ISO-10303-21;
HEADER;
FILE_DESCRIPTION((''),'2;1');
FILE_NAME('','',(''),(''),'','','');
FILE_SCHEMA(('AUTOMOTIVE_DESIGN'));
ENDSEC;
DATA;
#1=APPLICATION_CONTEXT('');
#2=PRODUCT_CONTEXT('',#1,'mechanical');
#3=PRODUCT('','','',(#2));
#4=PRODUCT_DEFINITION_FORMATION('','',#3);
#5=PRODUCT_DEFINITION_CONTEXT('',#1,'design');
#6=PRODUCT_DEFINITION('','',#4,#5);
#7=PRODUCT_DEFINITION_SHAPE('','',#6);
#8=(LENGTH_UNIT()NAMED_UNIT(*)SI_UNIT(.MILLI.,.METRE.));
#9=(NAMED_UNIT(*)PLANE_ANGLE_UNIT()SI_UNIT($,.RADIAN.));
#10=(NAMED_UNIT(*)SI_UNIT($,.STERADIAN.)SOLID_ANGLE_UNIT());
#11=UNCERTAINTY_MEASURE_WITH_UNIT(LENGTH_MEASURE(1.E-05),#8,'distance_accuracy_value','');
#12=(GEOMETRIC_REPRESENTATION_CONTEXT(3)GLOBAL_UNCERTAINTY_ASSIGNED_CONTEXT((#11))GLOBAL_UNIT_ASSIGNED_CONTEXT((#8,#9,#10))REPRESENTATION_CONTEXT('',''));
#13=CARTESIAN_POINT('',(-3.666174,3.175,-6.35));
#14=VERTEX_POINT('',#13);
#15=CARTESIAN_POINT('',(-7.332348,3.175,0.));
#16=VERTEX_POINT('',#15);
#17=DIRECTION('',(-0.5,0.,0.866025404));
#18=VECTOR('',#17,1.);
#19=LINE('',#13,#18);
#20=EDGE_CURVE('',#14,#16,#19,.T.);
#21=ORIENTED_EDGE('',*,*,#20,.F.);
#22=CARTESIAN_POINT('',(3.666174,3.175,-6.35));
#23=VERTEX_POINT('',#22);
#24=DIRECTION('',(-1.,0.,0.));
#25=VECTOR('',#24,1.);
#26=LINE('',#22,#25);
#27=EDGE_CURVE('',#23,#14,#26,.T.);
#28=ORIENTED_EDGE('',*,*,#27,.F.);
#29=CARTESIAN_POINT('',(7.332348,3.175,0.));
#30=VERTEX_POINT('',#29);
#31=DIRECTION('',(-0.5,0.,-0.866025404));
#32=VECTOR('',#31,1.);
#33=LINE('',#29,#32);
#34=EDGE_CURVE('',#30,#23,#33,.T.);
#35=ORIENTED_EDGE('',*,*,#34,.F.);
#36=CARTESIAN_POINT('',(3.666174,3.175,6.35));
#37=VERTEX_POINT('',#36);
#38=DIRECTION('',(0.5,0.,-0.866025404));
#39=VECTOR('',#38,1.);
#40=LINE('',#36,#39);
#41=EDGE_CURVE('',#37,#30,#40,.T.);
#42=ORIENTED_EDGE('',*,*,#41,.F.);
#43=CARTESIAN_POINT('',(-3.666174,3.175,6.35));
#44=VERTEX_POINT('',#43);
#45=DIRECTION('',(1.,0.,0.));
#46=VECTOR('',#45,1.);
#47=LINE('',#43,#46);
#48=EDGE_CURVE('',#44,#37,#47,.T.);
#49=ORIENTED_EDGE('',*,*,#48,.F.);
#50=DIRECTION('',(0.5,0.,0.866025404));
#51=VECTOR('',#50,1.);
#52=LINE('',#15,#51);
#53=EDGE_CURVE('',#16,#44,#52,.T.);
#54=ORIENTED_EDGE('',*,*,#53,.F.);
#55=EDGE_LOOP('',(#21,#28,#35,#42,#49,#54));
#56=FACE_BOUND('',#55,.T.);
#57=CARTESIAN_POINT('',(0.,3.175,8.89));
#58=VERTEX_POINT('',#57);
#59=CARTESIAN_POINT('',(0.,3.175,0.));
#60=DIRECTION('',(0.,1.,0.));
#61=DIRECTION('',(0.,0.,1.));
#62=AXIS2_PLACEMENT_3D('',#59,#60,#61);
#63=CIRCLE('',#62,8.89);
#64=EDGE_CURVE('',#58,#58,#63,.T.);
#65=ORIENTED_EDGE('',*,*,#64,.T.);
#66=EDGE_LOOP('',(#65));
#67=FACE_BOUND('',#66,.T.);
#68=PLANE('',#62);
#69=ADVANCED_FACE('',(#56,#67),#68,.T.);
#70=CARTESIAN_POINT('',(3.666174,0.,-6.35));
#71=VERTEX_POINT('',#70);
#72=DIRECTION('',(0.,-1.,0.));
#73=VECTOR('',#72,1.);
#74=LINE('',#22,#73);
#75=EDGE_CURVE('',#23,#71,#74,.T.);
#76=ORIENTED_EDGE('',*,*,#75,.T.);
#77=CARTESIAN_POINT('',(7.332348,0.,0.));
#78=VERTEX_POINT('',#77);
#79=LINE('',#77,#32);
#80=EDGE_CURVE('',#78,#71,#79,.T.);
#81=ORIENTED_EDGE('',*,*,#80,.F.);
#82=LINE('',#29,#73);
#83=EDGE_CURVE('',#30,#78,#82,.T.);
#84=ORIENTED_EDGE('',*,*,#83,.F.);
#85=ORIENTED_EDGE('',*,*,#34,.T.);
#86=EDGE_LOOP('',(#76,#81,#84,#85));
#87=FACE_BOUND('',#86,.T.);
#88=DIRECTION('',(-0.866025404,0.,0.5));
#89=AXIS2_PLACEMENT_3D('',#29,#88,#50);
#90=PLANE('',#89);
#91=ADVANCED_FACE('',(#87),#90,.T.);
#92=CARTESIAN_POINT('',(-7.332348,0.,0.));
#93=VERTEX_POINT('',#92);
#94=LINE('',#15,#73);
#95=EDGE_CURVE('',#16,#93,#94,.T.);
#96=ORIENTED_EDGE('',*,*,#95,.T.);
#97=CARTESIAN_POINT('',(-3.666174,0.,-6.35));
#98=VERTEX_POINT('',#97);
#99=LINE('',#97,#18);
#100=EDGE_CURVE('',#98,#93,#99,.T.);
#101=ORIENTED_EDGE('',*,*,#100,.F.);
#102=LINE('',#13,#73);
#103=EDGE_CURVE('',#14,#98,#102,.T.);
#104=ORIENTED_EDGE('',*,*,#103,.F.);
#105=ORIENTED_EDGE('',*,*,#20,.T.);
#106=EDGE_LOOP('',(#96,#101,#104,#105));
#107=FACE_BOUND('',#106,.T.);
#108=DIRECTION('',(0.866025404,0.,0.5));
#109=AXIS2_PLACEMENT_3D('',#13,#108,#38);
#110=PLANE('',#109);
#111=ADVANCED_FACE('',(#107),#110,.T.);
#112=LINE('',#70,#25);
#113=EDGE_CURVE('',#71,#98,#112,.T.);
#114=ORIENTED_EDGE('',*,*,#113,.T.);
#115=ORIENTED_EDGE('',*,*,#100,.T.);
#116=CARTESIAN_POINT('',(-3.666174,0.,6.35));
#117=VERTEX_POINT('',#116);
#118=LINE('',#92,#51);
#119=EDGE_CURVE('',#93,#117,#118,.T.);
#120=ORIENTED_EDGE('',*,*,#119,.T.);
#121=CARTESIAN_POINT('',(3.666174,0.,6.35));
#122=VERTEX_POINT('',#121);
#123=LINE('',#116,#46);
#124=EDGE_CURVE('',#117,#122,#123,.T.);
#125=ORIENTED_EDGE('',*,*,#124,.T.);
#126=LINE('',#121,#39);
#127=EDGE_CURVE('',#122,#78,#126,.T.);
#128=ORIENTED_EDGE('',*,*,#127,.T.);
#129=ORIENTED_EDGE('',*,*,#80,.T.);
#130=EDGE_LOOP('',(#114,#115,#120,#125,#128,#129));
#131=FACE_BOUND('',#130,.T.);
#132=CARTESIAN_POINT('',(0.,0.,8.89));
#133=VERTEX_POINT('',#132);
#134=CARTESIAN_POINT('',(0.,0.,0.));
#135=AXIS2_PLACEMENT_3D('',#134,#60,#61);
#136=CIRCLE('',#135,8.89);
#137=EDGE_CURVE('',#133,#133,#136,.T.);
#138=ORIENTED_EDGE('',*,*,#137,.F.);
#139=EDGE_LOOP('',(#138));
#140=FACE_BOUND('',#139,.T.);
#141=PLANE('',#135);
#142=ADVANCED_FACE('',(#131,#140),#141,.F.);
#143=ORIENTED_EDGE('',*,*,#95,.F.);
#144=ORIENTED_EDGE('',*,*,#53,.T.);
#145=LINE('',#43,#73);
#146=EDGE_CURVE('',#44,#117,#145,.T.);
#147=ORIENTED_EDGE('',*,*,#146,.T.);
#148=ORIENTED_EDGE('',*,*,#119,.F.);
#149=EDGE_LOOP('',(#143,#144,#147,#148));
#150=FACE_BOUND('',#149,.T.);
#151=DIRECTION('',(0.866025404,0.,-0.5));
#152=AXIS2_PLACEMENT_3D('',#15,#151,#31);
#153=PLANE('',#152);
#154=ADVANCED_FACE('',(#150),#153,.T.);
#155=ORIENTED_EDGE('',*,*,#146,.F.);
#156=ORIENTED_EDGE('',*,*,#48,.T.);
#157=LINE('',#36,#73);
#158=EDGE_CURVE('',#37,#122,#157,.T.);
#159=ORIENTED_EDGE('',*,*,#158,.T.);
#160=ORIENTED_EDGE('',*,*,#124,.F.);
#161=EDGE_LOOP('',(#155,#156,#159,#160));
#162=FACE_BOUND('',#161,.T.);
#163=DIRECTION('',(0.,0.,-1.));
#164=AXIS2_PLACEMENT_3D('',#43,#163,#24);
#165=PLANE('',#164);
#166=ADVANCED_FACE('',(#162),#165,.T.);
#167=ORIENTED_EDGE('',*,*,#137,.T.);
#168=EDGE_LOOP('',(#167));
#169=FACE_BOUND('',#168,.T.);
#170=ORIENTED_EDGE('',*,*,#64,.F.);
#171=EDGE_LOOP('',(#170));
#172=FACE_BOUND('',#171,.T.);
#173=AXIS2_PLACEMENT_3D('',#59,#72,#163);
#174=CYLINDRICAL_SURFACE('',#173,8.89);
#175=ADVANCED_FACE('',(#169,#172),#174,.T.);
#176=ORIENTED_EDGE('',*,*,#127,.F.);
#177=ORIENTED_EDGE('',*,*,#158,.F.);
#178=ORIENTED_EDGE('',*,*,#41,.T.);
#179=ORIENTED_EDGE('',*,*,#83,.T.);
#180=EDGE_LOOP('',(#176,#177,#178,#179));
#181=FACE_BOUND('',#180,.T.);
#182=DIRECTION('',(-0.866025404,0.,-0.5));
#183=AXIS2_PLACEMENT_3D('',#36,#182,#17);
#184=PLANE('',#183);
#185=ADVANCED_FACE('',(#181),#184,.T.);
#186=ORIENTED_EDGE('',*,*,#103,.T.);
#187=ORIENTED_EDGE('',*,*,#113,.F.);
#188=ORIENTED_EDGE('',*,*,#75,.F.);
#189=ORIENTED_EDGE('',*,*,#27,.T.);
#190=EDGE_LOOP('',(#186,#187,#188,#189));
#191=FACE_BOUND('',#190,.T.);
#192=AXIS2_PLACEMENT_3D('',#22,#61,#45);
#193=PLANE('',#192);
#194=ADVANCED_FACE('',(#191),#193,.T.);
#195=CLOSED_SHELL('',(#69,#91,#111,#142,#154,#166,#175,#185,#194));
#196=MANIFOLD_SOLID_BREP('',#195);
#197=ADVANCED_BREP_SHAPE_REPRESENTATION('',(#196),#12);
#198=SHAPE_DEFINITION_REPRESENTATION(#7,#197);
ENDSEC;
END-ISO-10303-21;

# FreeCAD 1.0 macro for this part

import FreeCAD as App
import Part
import Sketcher
from FreeCAD import Vector
Q = App.Units.Quantity

doc = App.newDocument("Part")
body = doc.addObject("PartDesign::Body", "Body")

# Sketch on XZ plane
sketch1 = body.newObject("Sketcher::SketchObject", "Sketch")
sketch1.AttachmentSupport = (doc.getObject("XZ_Plane"), [""])
sketch1.MapMode = "FlatFace"
sketch1.addGeometry([
    Part.Circle(Vector(0, 0, 0), Vector(0, 0, 1), 9),  # 0
    Part.LineSegment(Vector(4, -6, 0), Vector(7, 0, 0)),  # 1
    Part.LineSegment(Vector(7, 0, 0), Vector(4, 6, 0)),  # 2
    Part.LineSegment(Vector(4, 6, 0), Vector(-4, 6, 0)),  # 3
    Part.LineSegment(Vector(-4, 6, 0), Vector(-7, 0, 0)),  # 4
    Part.LineSegment(Vector(-7, 0, 0), Vector(-4, -6, 0)),  # 5
    Part.LineSegment(Vector(-4, -6, 0), Vector(4, -6, 0)),  # 6
], False)
sketch1.addConstraint([
    Sketcher.Constraint("Coincident", 1, 2, 2, 1),
    Sketcher.Constraint("Coincident", 2, 2, 3, 1),
    Sketcher.Constraint("Coincident", 3, 2, 4, 1),
    Sketcher.Constraint("Coincident", 4, 2, 5, 1),
    Sketcher.Constraint("Coincident", 5, 2, 6, 1),
    Sketcher.Constraint("Coincident", 6, 2, 1, 1),
    Sketcher.Constraint("Horizontal", 3),
    Sketcher.Constraint("Horizontal", 6),
    Sketcher.Constraint("Coincident", 0, 3, -1, 1),
    Sketcher.Constraint("Symmetric", 1, 2, 4, 2, -1, 1),
    Sketcher.Constraint("Symmetric", 2, 2, 5, 2, -1, 1),
    Sketcher.Constraint("PointOnObject", 1, 2, -1),
    Sketcher.Constraint("Parallel", 1, 4),
    Sketcher.Constraint("Vertical", 3, 2, 5, 2),
    Sketcher.Constraint("Diameter", 0, Q("0.7 in")),
    Sketcher.Constraint("Angle", 1, Q("60 deg")),
    Sketcher.Constraint("DistanceY", 5, 2, 3, 2, Q("0.5 in")),
    Sketcher.Constraint("DistanceX", 3, 2, 3, 1, 7.332348),
])
pad1 = body.newObject("PartDesign::Pad", "Pad")
pad1.Profile = sketch1
pad1.Length = Q("0.125 in")
pad1.Reversed = True

doc.recompute()
